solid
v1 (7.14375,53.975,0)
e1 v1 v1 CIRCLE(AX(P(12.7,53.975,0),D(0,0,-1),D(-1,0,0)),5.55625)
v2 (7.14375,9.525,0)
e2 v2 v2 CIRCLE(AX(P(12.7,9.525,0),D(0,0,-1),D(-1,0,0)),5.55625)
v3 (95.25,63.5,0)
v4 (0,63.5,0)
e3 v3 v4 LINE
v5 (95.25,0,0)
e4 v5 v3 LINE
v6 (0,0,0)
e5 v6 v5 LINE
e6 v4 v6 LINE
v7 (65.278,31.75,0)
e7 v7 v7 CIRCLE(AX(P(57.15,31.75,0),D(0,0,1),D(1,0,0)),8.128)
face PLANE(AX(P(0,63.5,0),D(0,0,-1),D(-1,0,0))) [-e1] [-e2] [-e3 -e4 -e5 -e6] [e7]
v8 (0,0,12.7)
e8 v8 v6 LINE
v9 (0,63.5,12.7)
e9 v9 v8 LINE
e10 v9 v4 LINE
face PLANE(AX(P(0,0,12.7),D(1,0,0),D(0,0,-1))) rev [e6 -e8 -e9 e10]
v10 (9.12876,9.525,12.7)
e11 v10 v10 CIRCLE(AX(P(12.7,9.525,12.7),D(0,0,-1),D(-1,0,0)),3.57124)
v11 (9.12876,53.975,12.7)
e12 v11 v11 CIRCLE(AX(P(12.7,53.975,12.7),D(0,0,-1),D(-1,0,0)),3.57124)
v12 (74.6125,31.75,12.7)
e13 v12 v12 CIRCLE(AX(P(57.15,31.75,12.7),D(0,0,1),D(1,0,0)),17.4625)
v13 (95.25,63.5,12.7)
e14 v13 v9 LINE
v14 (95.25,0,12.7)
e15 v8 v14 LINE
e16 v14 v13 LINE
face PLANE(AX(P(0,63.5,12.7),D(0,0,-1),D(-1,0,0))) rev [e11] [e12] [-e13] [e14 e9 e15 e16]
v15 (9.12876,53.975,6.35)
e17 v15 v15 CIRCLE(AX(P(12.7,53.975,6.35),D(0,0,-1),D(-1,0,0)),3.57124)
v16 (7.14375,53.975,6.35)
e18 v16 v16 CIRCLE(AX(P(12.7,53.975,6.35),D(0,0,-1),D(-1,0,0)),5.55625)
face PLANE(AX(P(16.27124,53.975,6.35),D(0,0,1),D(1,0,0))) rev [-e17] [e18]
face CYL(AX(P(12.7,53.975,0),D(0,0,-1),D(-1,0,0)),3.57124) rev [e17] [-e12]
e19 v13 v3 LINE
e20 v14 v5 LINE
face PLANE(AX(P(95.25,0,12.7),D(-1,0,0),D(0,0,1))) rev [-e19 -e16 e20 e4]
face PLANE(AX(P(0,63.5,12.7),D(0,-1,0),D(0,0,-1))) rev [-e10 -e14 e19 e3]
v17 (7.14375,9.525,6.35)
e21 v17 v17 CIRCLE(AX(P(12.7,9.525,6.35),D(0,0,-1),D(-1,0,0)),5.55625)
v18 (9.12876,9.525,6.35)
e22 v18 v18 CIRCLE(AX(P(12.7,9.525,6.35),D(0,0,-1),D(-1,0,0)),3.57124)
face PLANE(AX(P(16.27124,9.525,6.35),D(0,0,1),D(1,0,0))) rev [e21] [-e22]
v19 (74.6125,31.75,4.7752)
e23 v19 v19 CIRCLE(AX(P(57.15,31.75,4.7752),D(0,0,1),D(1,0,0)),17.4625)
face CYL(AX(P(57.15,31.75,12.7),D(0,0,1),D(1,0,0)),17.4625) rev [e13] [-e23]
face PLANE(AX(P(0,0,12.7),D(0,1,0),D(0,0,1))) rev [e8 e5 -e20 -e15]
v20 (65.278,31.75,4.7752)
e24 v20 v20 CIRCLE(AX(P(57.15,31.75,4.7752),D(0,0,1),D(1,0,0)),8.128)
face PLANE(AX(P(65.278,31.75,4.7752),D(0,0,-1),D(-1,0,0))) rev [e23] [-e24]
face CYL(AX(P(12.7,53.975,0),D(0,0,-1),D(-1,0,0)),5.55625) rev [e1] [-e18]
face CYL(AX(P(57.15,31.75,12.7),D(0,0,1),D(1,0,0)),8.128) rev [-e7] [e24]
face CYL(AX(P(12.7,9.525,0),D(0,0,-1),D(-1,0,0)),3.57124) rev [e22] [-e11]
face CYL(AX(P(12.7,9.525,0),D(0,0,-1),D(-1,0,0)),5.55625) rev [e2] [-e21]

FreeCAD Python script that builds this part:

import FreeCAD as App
import Part
import Sketcher
from FreeCAD import Vector
Q = App.Units.Quantity

doc = App.newDocument("Part")
params = doc.addObject("Spreadsheet::Sheet", "Params")
for row, (alias, value) in enumerate([
    ("sketch1_height", "2.5 in"),
    ("sketch1_width", "3.75 in"),
    ("pad1_length", "0.5 in"),
    ("hole_diameter", "0.2812 in"),
    ("hole_cbore_diameter", "0.4375 in"),
    ("hole_cbore_depth", "0.25 in"),
    ("sketch3_diameter", "0.64 in"),
    ("hole2_diameter", "0.64 in"),
    ("hole2_cbore_diameter", "1.375 in"),
    ("hole2_cbore_depth", "0.312 in"),
], start=1):
    params.set(f"A{row}", alias)
    params.set(f"B{row}", "=" + value)
    params.setAlias(f"B{row}", alias)

body = doc.addObject("PartDesign::Body", "Body")

# Sketch on XY plane
sketch1 = body.newObject("Sketcher::SketchObject", "Sketch")
sketch1.AttachmentSupport = (doc.getObject("XY_Plane"), [""])
sketch1.MapMode = "FlatFace"
sketch1.addGeometry([
    Part.LineSegment(Vector(0, 64, 0), Vector(0, 0, 0)),
    Part.LineSegment(Vector(0, 0, 0), Vector(95, 0, 0)),
    Part.LineSegment(Vector(95, 0, 0), Vector(95, 64, 0)),
    Part.LineSegment(Vector(95, 64, 0), Vector(0, 64, 0)),
], False)
sketch1.addConstraint([
    Sketcher.Constraint("Coincident", 0, 2, 1, 1),
    Sketcher.Constraint("Coincident", 1, 2, 2, 1),
    Sketcher.Constraint("Coincident", 2, 2, 3, 1),
    Sketcher.Constraint("Coincident", 3, 2, 0, 1),
    Sketcher.Constraint("Vertical", 0),
    Sketcher.Constraint("Horizontal", 1),
    Sketcher.Constraint("Vertical", 2),
    Sketcher.Constraint("Horizontal", 3),
    Sketcher.Constraint("Coincident", 0, 2, -1, 1),
    Sketcher.Constraint("DistanceY", 0, 2, 0, 1, Q("2.5 in")),
    Sketcher.Constraint("DistanceX", 1, 1, 1, 2, Q("3.75 in")),
])
sketch1.setExpression("Constraints[9]", "Params.sketch1_height")
sketch1.setExpression("Constraints[10]", "Params.sketch1_width")
pad1 = body.newObject("PartDesign::Pad", "Pad")
pad1.Profile = sketch1
pad1.setExpression("Length", "Params.pad1_length")

# Sketch on XY plane
sketch2 = body.newObject("Sketcher::SketchObject", "Sketch001")
sketch2.AttachmentSupport = (doc.getObject("XY_Plane"), [""])
sketch2.MapMode = "FlatFace"
sketch2.addGeometry([
    Part.Circle(Vector(12.7, 54, 0), Vector(0, 0, 1), 3.6),
    Part.Circle(Vector(12.7, 9.5, 0), Vector(0, 0, 1), 3.6),
], False)
sketch2.addConstraint([
    Sketcher.Constraint("Equal", 0, 1),
    Sketcher.Constraint("Vertical", 0, 3, 1, 3),
    Sketcher.Constraint("Diameter", 0, Q("0.2812 in")),
    Sketcher.Constraint("DistanceX", -1, 1, 0, 3, Q("0.5 in")),
    Sketcher.Constraint("DistanceY", 1, 3, 0, 3, Q("1.75 in")),
    Sketcher.Constraint("DistanceY", -1, 1, 0, 3, Q("2.125 in")),
])
doc.recompute()
hole = body.newObject("PartDesign::Hole", "Hole")
hole.Profile = sketch2
hole.ThreadType = "None"
hole.setExpression("Diameter", "Params.hole_diameter")
hole.DepthType = "ThroughAll"
hole.HoleCutType = "Counterbore"
hole.setExpression("HoleCutDiameter", "Params.hole_cbore_diameter")
hole.setExpression("HoleCutDepth", "Params.hole_cbore_depth")
hole.Reversed = True

# Sketch on XY plane
sketch3 = body.newObject("Sketcher::SketchObject", "Sketch002")
sketch3.AttachmentSupport = (doc.getObject("XY_Plane"), [""])
sketch3.MapMode = "FlatFace"
sketch3.AttachmentOffset = App.Placement(Vector(0, 0, 0.5 * 25.4), App.Rotation())
sketch3.addGeometry(Part.Circle(Vector(57, 32, 0), Vector(0, 0, 1), 8), False)
sketch3.addConstraint([
    Sketcher.Constraint("Diameter", 0, Q("0.64 in")),
    Sketcher.Constraint("DistanceX", -1, 1, 0, 3, Q("2.25 in")),
    Sketcher.Constraint("DistanceY", -1, 1, 0, 3, Q("1.25 in")),
])
sketch3.setExpression("Constraints[0]", "Params.sketch3_diameter")
doc.recompute()
hole2 = body.newObject("PartDesign::Hole", "Hole001")
hole2.Profile = sketch3
hole2.ThreadType = "None"
hole2.setExpression("Diameter", "Params.hole2_diameter")
hole2.DepthType = "ThroughAll"
hole2.HoleCutType = "Counterbore"
hole2.setExpression("HoleCutDiameter", "Params.hole2_cbore_diameter")
hole2.setExpression("HoleCutDepth", "Params.hole2_cbore_depth")

doc.recompute()
